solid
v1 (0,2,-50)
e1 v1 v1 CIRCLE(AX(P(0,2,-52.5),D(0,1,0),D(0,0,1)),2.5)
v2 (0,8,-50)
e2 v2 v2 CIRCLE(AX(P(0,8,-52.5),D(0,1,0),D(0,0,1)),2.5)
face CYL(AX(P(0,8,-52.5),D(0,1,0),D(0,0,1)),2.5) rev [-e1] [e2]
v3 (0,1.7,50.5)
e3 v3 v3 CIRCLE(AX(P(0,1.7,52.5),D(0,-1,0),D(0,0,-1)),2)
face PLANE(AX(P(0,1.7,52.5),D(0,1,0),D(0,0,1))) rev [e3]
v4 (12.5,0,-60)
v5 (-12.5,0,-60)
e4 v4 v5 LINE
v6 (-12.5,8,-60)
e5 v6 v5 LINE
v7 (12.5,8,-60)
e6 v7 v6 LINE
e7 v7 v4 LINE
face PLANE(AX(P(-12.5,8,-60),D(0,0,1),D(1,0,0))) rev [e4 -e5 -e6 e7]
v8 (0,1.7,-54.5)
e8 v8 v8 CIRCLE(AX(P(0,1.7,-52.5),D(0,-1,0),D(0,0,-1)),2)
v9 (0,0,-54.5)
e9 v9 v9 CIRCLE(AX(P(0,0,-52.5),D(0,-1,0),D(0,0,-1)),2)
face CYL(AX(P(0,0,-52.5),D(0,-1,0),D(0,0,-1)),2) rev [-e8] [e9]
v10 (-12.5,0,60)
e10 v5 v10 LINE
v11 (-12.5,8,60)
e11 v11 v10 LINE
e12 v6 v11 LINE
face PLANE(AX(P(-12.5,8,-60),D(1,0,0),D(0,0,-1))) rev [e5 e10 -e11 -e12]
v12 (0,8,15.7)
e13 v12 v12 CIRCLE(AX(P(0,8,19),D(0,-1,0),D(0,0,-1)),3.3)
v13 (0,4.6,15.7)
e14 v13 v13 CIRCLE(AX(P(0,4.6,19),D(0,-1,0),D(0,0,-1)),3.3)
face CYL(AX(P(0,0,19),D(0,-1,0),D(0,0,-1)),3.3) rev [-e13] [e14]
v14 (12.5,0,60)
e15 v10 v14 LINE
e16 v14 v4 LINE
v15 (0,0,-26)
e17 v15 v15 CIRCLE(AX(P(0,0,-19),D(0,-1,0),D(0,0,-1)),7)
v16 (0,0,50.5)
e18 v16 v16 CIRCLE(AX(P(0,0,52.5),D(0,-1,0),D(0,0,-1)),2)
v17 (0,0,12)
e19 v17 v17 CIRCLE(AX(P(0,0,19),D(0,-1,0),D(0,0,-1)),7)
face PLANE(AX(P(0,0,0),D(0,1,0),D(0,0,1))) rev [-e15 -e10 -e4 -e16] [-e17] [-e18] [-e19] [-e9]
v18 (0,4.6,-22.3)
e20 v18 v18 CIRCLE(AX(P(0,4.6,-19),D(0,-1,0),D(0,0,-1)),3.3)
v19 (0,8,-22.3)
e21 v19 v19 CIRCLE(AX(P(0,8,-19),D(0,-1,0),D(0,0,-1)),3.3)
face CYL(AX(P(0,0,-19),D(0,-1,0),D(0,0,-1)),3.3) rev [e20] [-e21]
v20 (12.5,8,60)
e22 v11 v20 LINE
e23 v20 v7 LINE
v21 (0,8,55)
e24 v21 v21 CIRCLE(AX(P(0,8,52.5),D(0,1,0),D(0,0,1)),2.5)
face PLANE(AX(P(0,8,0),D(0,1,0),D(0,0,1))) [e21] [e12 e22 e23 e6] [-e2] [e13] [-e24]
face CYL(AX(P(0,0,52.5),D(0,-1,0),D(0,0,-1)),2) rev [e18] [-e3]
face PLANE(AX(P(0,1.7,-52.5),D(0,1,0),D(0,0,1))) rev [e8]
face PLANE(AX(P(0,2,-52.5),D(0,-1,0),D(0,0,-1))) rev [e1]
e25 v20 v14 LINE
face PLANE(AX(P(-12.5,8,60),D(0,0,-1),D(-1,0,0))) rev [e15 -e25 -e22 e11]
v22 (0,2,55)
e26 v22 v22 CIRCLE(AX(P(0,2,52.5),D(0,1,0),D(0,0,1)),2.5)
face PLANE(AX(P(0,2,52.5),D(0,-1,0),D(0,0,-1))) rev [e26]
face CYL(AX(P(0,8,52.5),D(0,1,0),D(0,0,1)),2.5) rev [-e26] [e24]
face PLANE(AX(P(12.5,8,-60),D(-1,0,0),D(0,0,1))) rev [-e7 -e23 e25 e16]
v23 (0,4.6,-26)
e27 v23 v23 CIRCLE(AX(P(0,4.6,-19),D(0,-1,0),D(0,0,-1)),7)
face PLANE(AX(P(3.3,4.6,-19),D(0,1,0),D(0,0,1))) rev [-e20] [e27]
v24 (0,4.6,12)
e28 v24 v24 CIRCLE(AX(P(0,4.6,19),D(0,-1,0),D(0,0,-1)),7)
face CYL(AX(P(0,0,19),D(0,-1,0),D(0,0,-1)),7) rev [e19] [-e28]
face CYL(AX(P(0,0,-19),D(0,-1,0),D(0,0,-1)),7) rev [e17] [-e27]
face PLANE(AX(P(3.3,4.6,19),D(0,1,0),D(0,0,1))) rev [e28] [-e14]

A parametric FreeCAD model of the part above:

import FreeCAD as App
import Part
import Sketcher
Q = App.Units.Quantity


def add_polygon(sketch, points):
    """Adds a closed chain of lines whose ends are joined by coincident constraints."""
    first, n = sketch.GeometryCount, len(points)
    for a, b in zip(points, points[1:] + points[:1]):
        sketch.addGeometry(Part.LineSegment(App.Vector(*a, 0), App.Vector(*b, 0)), False)
    for i in range(n):
        sketch.addConstraint(Sketcher.Constraint("Coincident", first + i, 2, first + (i + 1) % n, 1))

doc = App.newDocument("Part")
params = doc.addObject("Spreadsheet::Sheet", "Params")
for row, (alias, value) in enumerate([
    ("sketch1_width", "25 mm"),
    ("sketch1_height", "120 mm"),
    ("pad1_length", "8 mm"),
    ("sketch2_diameter", "5 mm"),
    ("hole_diameter", "5 mm"),
    ("hole_depth", "6 mm"),
    ("sketch3_diameter", "4 mm"),
    ("hole2_diameter", "4 mm"),
    ("hole2_depth", "1.7 mm"),
    ("sketch4_diameter", "6.6 mm"),
    ("hole3_diameter", "6.6 mm"),
    ("hole3_cbore_diameter", "14 mm"),
    ("hole3_cbore_depth", "4.6 mm"),
], start=1):
    params.set(f"A{row}", alias)
    params.set(f"B{row}", "=" + value)
    params.setAlias(f"B{row}", alias)

body = doc.addObject("PartDesign::Body", "Body")

# Sketch on XZ plane
sketch1 = body.newObject("Sketcher::SketchObject", "Sketch")
sketch1.AttachmentSupport = (doc.getObject("XZ_Plane"), [""])
sketch1.MapMode = "FlatFace"
add_polygon(sketch1, [(-12.5, -60), (-12.5, 60), (12.5, 60), (12.5, -60)])  # lines 0-3
sketch1.addConstraint(Sketcher.Constraint("Vertical", 0))
sketch1.addConstraint(Sketcher.Constraint("Horizontal", 1))
sketch1.addConstraint(Sketcher.Constraint("Vertical", 2))
sketch1.addConstraint(Sketcher.Constraint("Horizontal", 3))
sketch1.addConstraint(Sketcher.Constraint("Symmetric", 0, 2, 2, 2, -1, 1))
sketch1.addConstraint(Sketcher.Constraint("DistanceX", 1, 1, 1, 2, Q("25 mm")))
sketch1.addConstraint(Sketcher.Constraint("DistanceY", 0, 1, 0, 2, Q("120 mm")))
sketch1.setExpression("Constraints[9]", "Params.sketch1_width")
sketch1.setExpression("Constraints[10]", "Params.sketch1_height")
pad1 = body.newObject("PartDesign::Pad", "Pad")
pad1.Profile = sketch1
pad1.setExpression("Length", "Params.pad1_length")
pad1.Reversed = True

# Sketch on XZ plane
sketch2 = body.newObject("Sketcher::SketchObject", "Sketch001")
sketch2.AttachmentSupport = (doc.getObject("XZ_Plane"), [""])
sketch2.MapMode = "FlatFace"
sketch2.AttachmentOffset = App.Placement(App.Vector(0, 0, -8), App.Rotation())
sketch2.addGeometry(Part.Circle(App.Vector(0, 52.5, 0), App.Vector(0, 0, 1), 2.5), False)
sketch2.addGeometry(Part.Circle(App.Vector(0, -52.5, 0), App.Vector(0, 0, 1), 2.5), False)
sketch2.addConstraint(Sketcher.Constraint("Equal", 0, 1))
sketch2.addConstraint(Sketcher.Constraint("Symmetric", 0, 3, 1, 3, -1, 1))
sketch2.addConstraint(Sketcher.Constraint("PointOnObject", 0, 3, -2))
sketch2.addConstraint(Sketcher.Constraint("Diameter", 0, Q("5 mm")))
sketch2.addConstraint(Sketcher.Constraint("DistanceY", 1, 3, 0, 3, Q("105 mm")))
sketch2.setExpression("Constraints[3]", "Params.sketch2_diameter")
doc.recompute()
hole = body.newObject("PartDesign::Hole", "Hole")
hole.Profile = sketch2
hole.ThreadType = "None"
hole.setExpression("Diameter", "Params.hole_diameter")
hole.DepthType = "Dimension"
hole.setExpression("Depth", "Params.hole_depth")
hole.DrillPoint = "Flat"
hole.Reversed = True

# Sketch on XZ plane
sketch3 = body.newObject("Sketcher::SketchObject", "Sketch002")
sketch3.AttachmentSupport = (doc.getObject("XZ_Plane"), [""])
sketch3.MapMode = "FlatFace"
sketch3.addGeometry(Part.Circle(App.Vector(0, 52.5, 0), App.Vector(0, 0, 1), 2), False)
sketch3.addGeometry(Part.Circle(App.Vector(0, -52.5, 0), App.Vector(0, 0, 1), 2), False)
sketch3.addConstraint(Sketcher.Constraint("Equal", 0, 1))
sketch3.addConstraint(Sketcher.Constraint("Symmetric", 0, 3, 1, 3, -1, 1))
sketch3.addConstraint(Sketcher.Constraint("PointOnObject", 0, 3, -2))
sketch3.addConstraint(Sketcher.Constraint("Diameter", 0, Q("4 mm")))
sketch3.addConstraint(Sketcher.Constraint("DistanceY", 1, 3, 0, 3, Q("105 mm")))
sketch3.setExpression("Constraints[3]", "Params.sketch3_diameter")
doc.recompute()
hole2 = body.newObject("PartDesign::Hole", "Hole001")
hole2.Profile = sketch3
hole2.ThreadType = "None"
hole2.setExpression("Diameter", "Params.hole2_diameter")
hole2.DepthType = "Dimension"
hole2.setExpression("Depth", "Params.hole2_depth")
hole2.DrillPoint = "Flat"

# Sketch on XZ plane
sketch4 = body.newObject("Sketcher::SketchObject", "Sketch003")
sketch4.AttachmentSupport = (doc.getObject("XZ_Plane"), [""])
sketch4.MapMode = "FlatFace"
sketch4.addGeometry(Part.Circle(App.Vector(0, 19, 0), App.Vector(0, 0, 1), 3.3), False)
sketch4.addGeometry(Part.Circle(App.Vector(0, -19, 0), App.Vector(0, 0, 1), 3.3), False)
sketch4.addConstraint(Sketcher.Constraint("Equal", 0, 1))
sketch4.addConstraint(Sketcher.Constraint("Symmetric", 0, 3, 1, 3, -1, 1))
sketch4.addConstraint(Sketcher.Constraint("PointOnObject", 0, 3, -2))
sketch4.addConstraint(Sketcher.Constraint("Diameter", 0, Q("6.6 mm")))
sketch4.addConstraint(Sketcher.Constraint("DistanceY", -1, 1, 0, 3, Q("19 mm")))
sketch4.setExpression("Constraints[3]", "Params.sketch4_diameter")
doc.recompute()
hole3 = body.newObject("PartDesign::Hole", "Hole002")
hole3.Profile = sketch4
hole3.ThreadType = "None"
hole3.setExpression("Diameter", "Params.hole3_diameter")
hole3.DepthType = "ThroughAll"
hole3.HoleCutType = "Counterbore"
hole3.setExpression("HoleCutDiameter", "Params.hole3_cbore_diameter")
hole3.setExpression("HoleCutDepth", "Params.hole3_cbore_depth")

doc.recompute()
